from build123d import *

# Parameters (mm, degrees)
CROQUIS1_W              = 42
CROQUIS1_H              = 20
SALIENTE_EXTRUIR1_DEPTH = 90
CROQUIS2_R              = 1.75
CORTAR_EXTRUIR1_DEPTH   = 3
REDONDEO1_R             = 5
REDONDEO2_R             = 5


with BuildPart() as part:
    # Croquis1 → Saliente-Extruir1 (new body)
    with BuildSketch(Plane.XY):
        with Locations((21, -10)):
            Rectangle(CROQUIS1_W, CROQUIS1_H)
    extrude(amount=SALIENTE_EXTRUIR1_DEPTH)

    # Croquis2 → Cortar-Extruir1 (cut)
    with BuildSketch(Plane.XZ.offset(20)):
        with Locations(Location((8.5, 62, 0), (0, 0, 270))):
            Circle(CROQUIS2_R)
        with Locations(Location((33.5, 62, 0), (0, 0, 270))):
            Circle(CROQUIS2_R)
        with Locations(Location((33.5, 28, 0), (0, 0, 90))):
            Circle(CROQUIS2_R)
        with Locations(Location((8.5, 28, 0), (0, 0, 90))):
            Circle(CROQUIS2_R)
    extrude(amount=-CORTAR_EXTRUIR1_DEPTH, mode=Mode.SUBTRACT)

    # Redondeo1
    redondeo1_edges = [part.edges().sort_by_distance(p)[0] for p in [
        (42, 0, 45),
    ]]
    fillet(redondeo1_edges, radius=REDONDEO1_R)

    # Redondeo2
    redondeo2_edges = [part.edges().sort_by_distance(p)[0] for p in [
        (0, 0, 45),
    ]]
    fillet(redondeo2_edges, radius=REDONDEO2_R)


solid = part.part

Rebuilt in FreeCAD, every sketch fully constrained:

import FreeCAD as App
import Part
import Sketcher
from FreeCAD import Vector
Q = App.Units.Quantity


def edges_at(feature, points):
    """Names of the edges that pass closest to the given points."""
    edges = feature.Shape.Edges
    near = lambda p: min(range(len(edges)), key=lambda i: edges[i].distToShape(Part.Vertex(*p))[0])
    return sorted({f"Edge{near(p) + 1}" for p in points})

doc = App.newDocument("Part")
params = doc.addObject("Spreadsheet::Sheet", "Params")
for row, (alias, value) in enumerate([
    ("sketch1_width", "42 mm"),
    ("sketch1_height", "20 mm"),
    ("pad1_length", "90 mm"),
    ("sketch2_diameter", "3.5 mm"),
    ("pocket1_length", "3 mm"),
    ("fillet_radius", "5 mm"),
    ("fillet2_radius", "5 mm"),
], start=1):
    params.set(f"A{row}", alias)
    params.set(f"B{row}", "=" + value)
    params.setAlias(f"B{row}", alias)

body = doc.addObject("PartDesign::Body", "Body")

# Sketch on XY plane
sketch1 = body.newObject("Sketcher::SketchObject", "Sketch")
sketch1.AttachmentSupport = (doc.getObject("XY_Plane"), [""])
sketch1.MapMode = "FlatFace"
sketch1.addGeometry([
    Part.LineSegment(Vector(0, 0, 0), Vector(0, -20, 0)),
    Part.LineSegment(Vector(0, -20, 0), Vector(42, -20, 0)),
    Part.LineSegment(Vector(42, -20, 0), Vector(42, 0, 0)),
    Part.LineSegment(Vector(42, 0, 0), Vector(0, 0, 0)),
], False)
sketch1.addConstraint([
    Sketcher.Constraint("Coincident", 0, 2, 1, 1),
    Sketcher.Constraint("Coincident", 1, 2, 2, 1),
    Sketcher.Constraint("Coincident", 2, 2, 3, 1),
    Sketcher.Constraint("Coincident", 3, 2, 0, 1),
    Sketcher.Constraint("Vertical", 0),
    Sketcher.Constraint("Horizontal", 1),
    Sketcher.Constraint("Vertical", 2),
    Sketcher.Constraint("Horizontal", 3),
    Sketcher.Constraint("Coincident", 3, 2, -1, 1),
    Sketcher.Constraint("DistanceX", 1, 1, 1, 2, Q("42 mm")),
    Sketcher.Constraint("DistanceY", 0, 2, 0, 1, Q("20 mm")),
])
sketch1.setExpression("Constraints[9]", "Params.sketch1_width")
sketch1.setExpression("Constraints[10]", "Params.sketch1_height")
pad1 = body.newObject("PartDesign::Pad", "Pad")
pad1.Profile = sketch1
pad1.setExpression("Length", "Params.pad1_length")

# Sketch on XZ plane
sketch2 = body.newObject("Sketcher::SketchObject", "Sketch001")
sketch2.AttachmentSupport = (doc.getObject("XZ_Plane"), [""])
sketch2.MapMode = "FlatFace"
sketch2.AttachmentOffset = App.Placement(Vector(0, 0, 20), App.Rotation())
sketch2.addGeometry([
    Part.Circle(Vector(8.5, 62, 0), Vector(0, 0, 1), 1.75),
    Part.Circle(Vector(33.5, 62, 0), Vector(0, 0, 1), 1.75),
    Part.Circle(Vector(33.5, 28, 0), Vector(0, 0, 1), 1.75),
    Part.Circle(Vector(8.5, 28, 0), Vector(0, 0, 1), 1.75),
], False)
sketch2.addConstraint([
    Sketcher.Constraint("Equal", 0, 1),
    Sketcher.Constraint("Equal", 1, 2),
    Sketcher.Constraint("Equal", 2, 3),
    Sketcher.Constraint("Horizontal", 0, 3, 1, 3),
    Sketcher.Constraint("Horizontal", 2, 3, 3, 3),
    Sketcher.Constraint("Vertical", 1, 3, 2, 3),
    Sketcher.Constraint("Vertical", 0, 3, 3, 3),
    Sketcher.Constraint("Diameter", 0, Q("3.5 mm")),
    Sketcher.Constraint("DistanceY", -1, 1, 0, 3, Q("62 mm")),
    Sketcher.Constraint("DistanceY", -1, 1, 2, 3, Q("28 mm")),
    Sketcher.Constraint("DistanceX", 0, 3, 1, 3, Q("25 mm")),
    Sketcher.Constraint("DistanceX", -1, 1, 0, 3, Q("8.5 mm")),
])
sketch2.setExpression("Constraints[7]", "Params.sketch2_diameter")
pocket1 = body.newObject("PartDesign::Pocket", "Pocket")
pocket1.Profile = sketch2
pocket1.setExpression("Length", "Params.pocket1_length")
doc.recompute()

fillet = body.newObject("PartDesign::Fillet", "Fillet")
fillet.Base = (pocket1, edges_at(pocket1, [(42, 0, 45)]))
fillet.setExpression("Radius", "Params.fillet_radius")
doc.recompute()

fillet2 = body.newObject("PartDesign::Fillet", "Fillet001")
fillet2.Base = (fillet, edges_at(fillet, [(0, 0, 45)]))
fillet2.setExpression("Radius", "Params.fillet2_radius")

doc.recompute()
